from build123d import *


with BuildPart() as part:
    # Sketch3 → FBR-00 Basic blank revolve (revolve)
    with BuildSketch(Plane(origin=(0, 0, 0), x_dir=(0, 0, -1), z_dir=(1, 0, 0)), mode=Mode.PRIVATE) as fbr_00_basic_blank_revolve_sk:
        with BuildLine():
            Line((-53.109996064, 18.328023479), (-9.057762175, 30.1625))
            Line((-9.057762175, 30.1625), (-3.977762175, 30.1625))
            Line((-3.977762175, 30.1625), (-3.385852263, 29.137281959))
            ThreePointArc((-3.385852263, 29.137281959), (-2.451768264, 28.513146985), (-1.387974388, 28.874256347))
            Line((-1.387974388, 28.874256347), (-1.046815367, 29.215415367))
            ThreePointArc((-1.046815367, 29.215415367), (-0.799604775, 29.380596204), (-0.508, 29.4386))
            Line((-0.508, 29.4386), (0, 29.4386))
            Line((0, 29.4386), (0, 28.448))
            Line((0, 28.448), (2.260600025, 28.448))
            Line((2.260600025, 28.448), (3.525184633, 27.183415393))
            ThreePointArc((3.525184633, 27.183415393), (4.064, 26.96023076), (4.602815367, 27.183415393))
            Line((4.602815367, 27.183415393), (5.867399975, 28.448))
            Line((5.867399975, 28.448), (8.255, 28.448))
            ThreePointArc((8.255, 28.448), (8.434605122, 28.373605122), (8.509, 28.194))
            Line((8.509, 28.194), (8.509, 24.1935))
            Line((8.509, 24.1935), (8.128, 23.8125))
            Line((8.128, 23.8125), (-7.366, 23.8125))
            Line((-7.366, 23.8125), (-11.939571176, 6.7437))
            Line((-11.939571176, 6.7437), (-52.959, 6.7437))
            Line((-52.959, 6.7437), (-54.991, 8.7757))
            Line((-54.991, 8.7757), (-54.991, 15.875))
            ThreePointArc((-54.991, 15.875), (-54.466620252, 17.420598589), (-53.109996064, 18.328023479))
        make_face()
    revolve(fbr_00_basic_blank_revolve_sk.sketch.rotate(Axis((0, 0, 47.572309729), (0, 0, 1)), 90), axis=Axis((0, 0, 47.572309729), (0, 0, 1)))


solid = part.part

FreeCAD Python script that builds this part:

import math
import FreeCAD as App
import Part
import Sketcher

V = App.Vector
Q = App.Units.Quantity

doc = App.newDocument("Part")
body = doc.addObject("PartDesign::Body", "Body")

# Sketch on YZ plane
sketch1 = body.newObject("Sketcher::SketchObject", "Sketch")
sketch1.AttachmentSupport = (doc.getObject("YZ_Plane"), [""])
sketch1.MapMode = "FlatFace"
sketch1.addGeometry(Part.LineSegment(V(30.16, 9.06, 0), V(18.33, 53.11, 0)), False)
sketch1.addGeometry(Part.ArcOfCircle(Part.Circle(V(15.87, 52.45, 0), V(0, 0, 1), 2.54), math.radians(15), math.radians(90)), False)
sketch1.addGeometry(Part.LineSegment(V(15.88, 54.99, 0), V(8.78, 54.99, 0)), False)
sketch1.addGeometry(Part.LineSegment(V(8.78, 54.99, 0), V(6.74, 52.96, 0)), False)
sketch1.addGeometry(Part.LineSegment(V(6.74, 52.96, 0), V(6.74, 11.94, 0)), False)
sketch1.addGeometry(Part.LineSegment(V(6.74, 11.94, 0), V(23.81, 7.37, 0)), False)
sketch1.addGeometry(Part.LineSegment(V(23.81, 7.37, 0), V(23.81, -8.13, 0)), False)
sketch1.addGeometry(Part.LineSegment(V(23.81, -8.13, 0), V(24.19, -8.51, 0)), False)
sketch1.addGeometry(Part.LineSegment(V(24.19, -8.51, 0), V(28.19, -8.51, 0)), False)
sketch1.addGeometry(Part.ArcOfCircle(Part.Circle(V(28.19, -8.25, 0), V(0, 0, 1), 0.25), math.radians(-90), math.radians(0)), False)
sketch1.addGeometry(Part.LineSegment(V(28.45, -8.26, 0), V(28.45, -5.87, 0)), False)
sketch1.addGeometry(Part.LineSegment(V(28.45, -5.87, 0), V(27.18, -4.6, 0)), False)
sketch1.addGeometry(Part.ArcOfCircle(Part.Circle(V(27.72, -4.06, 0), V(0, 0, 1), 0.76), math.radians(135), math.radians(225)), False)
sketch1.addGeometry(Part.LineSegment(V(27.18, -3.53, 0), V(28.45, -2.26, 0)), False)
sketch1.addGeometry(Part.LineSegment(V(28.45, -2.26, 0), V(28.45, 0, 0)), False)
sketch1.addGeometry(Part.LineSegment(V(28.45, 0, 0), V(29.44, 0, 0)), False)
sketch1.addGeometry(Part.LineSegment(V(29.44, 0, 0), V(29.44, 0.51, 0)), False)
sketch1.addGeometry(Part.ArcOfCircle(Part.Circle(V(28.68, 0.51, 0), V(0, 0, 1), 0.76), math.radians(0), math.radians(45)), False)
sketch1.addGeometry(Part.LineSegment(V(29.22, 1.05, 0), V(28.87, 1.39, 0)), False)
sketch1.addGeometry(Part.ArcOfCircle(Part.Circle(V(29.77, 2.29, 0), V(0, 0, 1), 1.27), math.radians(120), math.radians(225)), False)
sketch1.addGeometry(Part.LineSegment(V(29.14, 3.39, 0), V(30.16, 3.98, 0)), False)
sketch1.addGeometry(Part.LineSegment(V(30.16, 3.98, 0), V(30.16, 9.06, 0)), False)
sketch1.addConstraint(Sketcher.Constraint("Tangent", 0, 2, 1, 1))
sketch1.addConstraint(Sketcher.Constraint("Tangent", 1, 2, 2, 1))
sketch1.addConstraint(Sketcher.Constraint("Coincident", 2, 2, 3, 1))
sketch1.addConstraint(Sketcher.Constraint("Coincident", 3, 2, 4, 1))
sketch1.addConstraint(Sketcher.Constraint("Coincident", 4, 2, 5, 1))
sketch1.addConstraint(Sketcher.Constraint("Coincident", 5, 2, 6, 1))
sketch1.addConstraint(Sketcher.Constraint("Coincident", 6, 2, 7, 1))
sketch1.addConstraint(Sketcher.Constraint("Coincident", 7, 2, 8, 1))
sketch1.addConstraint(Sketcher.Constraint("Tangent", 8, 2, 9, 1))
sketch1.addConstraint(Sketcher.Constraint("Tangent", 9, 2, 10, 1))
sketch1.addConstraint(Sketcher.Constraint("Coincident", 10, 2, 11, 1))
sketch1.addConstraint(Sketcher.Constraint("Tangent", 11, 2, 12, 2))
sketch1.addConstraint(Sketcher.Constraint("Tangent", 12, 1, 13, 1))
sketch1.addConstraint(Sketcher.Constraint("Coincident", 13, 2, 14, 1))
sketch1.addConstraint(Sketcher.Constraint("Coincident", 14, 2, 15, 1))
sketch1.addConstraint(Sketcher.Constraint("Coincident", 15, 2, 16, 1))
sketch1.addConstraint(Sketcher.Constraint("Tangent", 16, 2, 17, 1))
sketch1.addConstraint(Sketcher.Constraint("Tangent", 17, 2, 18, 1))
sketch1.addConstraint(Sketcher.Constraint("Tangent", 18, 2, 19, 2))
sketch1.addConstraint(Sketcher.Constraint("Tangent", 19, 1, 20, 1))
sketch1.addConstraint(Sketcher.Constraint("Coincident", 20, 2, 21, 1))
sketch1.addConstraint(Sketcher.Constraint("Coincident", 21, 2, 0, 1))
sketch1.addConstraint(Sketcher.Constraint("Horizontal", 2))
sketch1.addConstraint(Sketcher.Constraint("Vertical", 4))
sketch1.addConstraint(Sketcher.Constraint("Vertical", 6))
sketch1.addConstraint(Sketcher.Constraint("Horizontal", 8))
sketch1.addConstraint(Sketcher.Constraint("Vertical", 10))
sketch1.addConstraint(Sketcher.Constraint("Vertical", 14))
sketch1.addConstraint(Sketcher.Constraint("Horizontal", 15))
sketch1.addConstraint(Sketcher.Constraint("Vertical", 16))
sketch1.addConstraint(Sketcher.Constraint("Vertical", 21))
sketch1.addConstraint(Sketcher.Constraint("Equal", 12, 17))
sketch1.addConstraint(Sketcher.Constraint("PointOnObject", 14, 2, -1))
sketch1.addConstraint(Sketcher.Constraint("Perpendicular", 3, 7))
sketch1.addConstraint(Sketcher.Constraint("Parallel", 7, 11))
sketch1.addConstraint(Sketcher.Constraint("Perpendicular", 11, 13))
sketch1.addConstraint(Sketcher.Constraint("Perpendicular", 13, 18))
sketch1.addConstraint(Sketcher.Constraint("Vertical", 11, 2, 12, 1))
sketch1.addConstraint(Sketcher.Constraint("Vertical", 10, 2, 13, 2))
sketch1.addConstraint(Sketcher.Constraint("Radius", 1, Q("0.1 in")))
sketch1.addConstraint(Sketcher.Constraint("Radius", 9, Q("0.01 in")))
sketch1.addConstraint(Sketcher.Constraint("Radius", 12, Q("0.03 in")))
sketch1.addConstraint(Sketcher.Constraint("Radius", 19, Q("0.05 in")))
sketch1.addConstraint(Sketcher.Constraint("DistanceY", 21, 1, 21, 2, Q("0.2 in")))
sketch1.addConstraint(Sketcher.Constraint("Angle", 5, Q("-15 deg")))
sketch1.addConstraint(Sketcher.Constraint("Angle", 20, Q("30 deg")))
sketch1.addConstraint(Sketcher.Constraint("DistanceY", 6, 2, 6, 1, Q("0.61 in")))
sketch1.addConstraint(Sketcher.Constraint("DistanceY", 16, 1, 16, 2, Q("0.02 in")))
sketch1.addConstraint(Sketcher.Constraint("DistanceY", 19, 3, 5, 2, Q("0.2 in")))
sketch1.addConstraint(Sketcher.Constraint("DistanceX", 15, 1, 15, 2, Q("0.039 in")))
sketch1.addConstraint(Sketcher.Constraint("DistanceY", 10, 1, 10, 2, Q("0.094 in")))
sketch1.addConstraint(Sketcher.Constraint("DistanceY", 14, 1, 14, 2, Q("0.089 in")))
sketch1.addConstraint(Sketcher.Constraint("DistanceX", -1, 1, 9, 3, Q("1.11 in")))
sketch1.addConstraint(Sketcher.Constraint("DistanceY", 12, 3, -1, 1, Q("0.16 in")))
sketch1.addConstraint(Sketcher.Constraint("DistanceY", -1, 1, 19, 3, Q("0.09 in")))
sketch1.addConstraint(Sketcher.Constraint("DistanceY", 9, 3, 1, 3, Q("2.39 in")))
sketch1.addConstraint(Sketcher.Constraint("DistanceX", 3, 2, 2, 2, Q("0.08 in")))
sketch1.addConstraint(Sketcher.Constraint("DistanceX", 5, 2, 21, 2, Q("0.25 in")))
sketch1.addConstraint(Sketcher.Constraint("DistanceX", 2, 2, 2, 1, Q("0.2795 in")))
sketch1.addConstraint(Sketcher.Constraint("DistanceX", 8, 1, 8, 2, Q("0.1575 in")))
sketch1.addConstraint(Sketcher.Constraint("DistanceX", -1, 1, 1, 3, Q("0.625 in")))
revolution = body.newObject("PartDesign::Revolution", "Revolution")
revolution.Profile = sketch1
revolution.ReferenceAxis = (sketch1, ["V_Axis"])
revolution.Angle = 360

doc.recompute()
